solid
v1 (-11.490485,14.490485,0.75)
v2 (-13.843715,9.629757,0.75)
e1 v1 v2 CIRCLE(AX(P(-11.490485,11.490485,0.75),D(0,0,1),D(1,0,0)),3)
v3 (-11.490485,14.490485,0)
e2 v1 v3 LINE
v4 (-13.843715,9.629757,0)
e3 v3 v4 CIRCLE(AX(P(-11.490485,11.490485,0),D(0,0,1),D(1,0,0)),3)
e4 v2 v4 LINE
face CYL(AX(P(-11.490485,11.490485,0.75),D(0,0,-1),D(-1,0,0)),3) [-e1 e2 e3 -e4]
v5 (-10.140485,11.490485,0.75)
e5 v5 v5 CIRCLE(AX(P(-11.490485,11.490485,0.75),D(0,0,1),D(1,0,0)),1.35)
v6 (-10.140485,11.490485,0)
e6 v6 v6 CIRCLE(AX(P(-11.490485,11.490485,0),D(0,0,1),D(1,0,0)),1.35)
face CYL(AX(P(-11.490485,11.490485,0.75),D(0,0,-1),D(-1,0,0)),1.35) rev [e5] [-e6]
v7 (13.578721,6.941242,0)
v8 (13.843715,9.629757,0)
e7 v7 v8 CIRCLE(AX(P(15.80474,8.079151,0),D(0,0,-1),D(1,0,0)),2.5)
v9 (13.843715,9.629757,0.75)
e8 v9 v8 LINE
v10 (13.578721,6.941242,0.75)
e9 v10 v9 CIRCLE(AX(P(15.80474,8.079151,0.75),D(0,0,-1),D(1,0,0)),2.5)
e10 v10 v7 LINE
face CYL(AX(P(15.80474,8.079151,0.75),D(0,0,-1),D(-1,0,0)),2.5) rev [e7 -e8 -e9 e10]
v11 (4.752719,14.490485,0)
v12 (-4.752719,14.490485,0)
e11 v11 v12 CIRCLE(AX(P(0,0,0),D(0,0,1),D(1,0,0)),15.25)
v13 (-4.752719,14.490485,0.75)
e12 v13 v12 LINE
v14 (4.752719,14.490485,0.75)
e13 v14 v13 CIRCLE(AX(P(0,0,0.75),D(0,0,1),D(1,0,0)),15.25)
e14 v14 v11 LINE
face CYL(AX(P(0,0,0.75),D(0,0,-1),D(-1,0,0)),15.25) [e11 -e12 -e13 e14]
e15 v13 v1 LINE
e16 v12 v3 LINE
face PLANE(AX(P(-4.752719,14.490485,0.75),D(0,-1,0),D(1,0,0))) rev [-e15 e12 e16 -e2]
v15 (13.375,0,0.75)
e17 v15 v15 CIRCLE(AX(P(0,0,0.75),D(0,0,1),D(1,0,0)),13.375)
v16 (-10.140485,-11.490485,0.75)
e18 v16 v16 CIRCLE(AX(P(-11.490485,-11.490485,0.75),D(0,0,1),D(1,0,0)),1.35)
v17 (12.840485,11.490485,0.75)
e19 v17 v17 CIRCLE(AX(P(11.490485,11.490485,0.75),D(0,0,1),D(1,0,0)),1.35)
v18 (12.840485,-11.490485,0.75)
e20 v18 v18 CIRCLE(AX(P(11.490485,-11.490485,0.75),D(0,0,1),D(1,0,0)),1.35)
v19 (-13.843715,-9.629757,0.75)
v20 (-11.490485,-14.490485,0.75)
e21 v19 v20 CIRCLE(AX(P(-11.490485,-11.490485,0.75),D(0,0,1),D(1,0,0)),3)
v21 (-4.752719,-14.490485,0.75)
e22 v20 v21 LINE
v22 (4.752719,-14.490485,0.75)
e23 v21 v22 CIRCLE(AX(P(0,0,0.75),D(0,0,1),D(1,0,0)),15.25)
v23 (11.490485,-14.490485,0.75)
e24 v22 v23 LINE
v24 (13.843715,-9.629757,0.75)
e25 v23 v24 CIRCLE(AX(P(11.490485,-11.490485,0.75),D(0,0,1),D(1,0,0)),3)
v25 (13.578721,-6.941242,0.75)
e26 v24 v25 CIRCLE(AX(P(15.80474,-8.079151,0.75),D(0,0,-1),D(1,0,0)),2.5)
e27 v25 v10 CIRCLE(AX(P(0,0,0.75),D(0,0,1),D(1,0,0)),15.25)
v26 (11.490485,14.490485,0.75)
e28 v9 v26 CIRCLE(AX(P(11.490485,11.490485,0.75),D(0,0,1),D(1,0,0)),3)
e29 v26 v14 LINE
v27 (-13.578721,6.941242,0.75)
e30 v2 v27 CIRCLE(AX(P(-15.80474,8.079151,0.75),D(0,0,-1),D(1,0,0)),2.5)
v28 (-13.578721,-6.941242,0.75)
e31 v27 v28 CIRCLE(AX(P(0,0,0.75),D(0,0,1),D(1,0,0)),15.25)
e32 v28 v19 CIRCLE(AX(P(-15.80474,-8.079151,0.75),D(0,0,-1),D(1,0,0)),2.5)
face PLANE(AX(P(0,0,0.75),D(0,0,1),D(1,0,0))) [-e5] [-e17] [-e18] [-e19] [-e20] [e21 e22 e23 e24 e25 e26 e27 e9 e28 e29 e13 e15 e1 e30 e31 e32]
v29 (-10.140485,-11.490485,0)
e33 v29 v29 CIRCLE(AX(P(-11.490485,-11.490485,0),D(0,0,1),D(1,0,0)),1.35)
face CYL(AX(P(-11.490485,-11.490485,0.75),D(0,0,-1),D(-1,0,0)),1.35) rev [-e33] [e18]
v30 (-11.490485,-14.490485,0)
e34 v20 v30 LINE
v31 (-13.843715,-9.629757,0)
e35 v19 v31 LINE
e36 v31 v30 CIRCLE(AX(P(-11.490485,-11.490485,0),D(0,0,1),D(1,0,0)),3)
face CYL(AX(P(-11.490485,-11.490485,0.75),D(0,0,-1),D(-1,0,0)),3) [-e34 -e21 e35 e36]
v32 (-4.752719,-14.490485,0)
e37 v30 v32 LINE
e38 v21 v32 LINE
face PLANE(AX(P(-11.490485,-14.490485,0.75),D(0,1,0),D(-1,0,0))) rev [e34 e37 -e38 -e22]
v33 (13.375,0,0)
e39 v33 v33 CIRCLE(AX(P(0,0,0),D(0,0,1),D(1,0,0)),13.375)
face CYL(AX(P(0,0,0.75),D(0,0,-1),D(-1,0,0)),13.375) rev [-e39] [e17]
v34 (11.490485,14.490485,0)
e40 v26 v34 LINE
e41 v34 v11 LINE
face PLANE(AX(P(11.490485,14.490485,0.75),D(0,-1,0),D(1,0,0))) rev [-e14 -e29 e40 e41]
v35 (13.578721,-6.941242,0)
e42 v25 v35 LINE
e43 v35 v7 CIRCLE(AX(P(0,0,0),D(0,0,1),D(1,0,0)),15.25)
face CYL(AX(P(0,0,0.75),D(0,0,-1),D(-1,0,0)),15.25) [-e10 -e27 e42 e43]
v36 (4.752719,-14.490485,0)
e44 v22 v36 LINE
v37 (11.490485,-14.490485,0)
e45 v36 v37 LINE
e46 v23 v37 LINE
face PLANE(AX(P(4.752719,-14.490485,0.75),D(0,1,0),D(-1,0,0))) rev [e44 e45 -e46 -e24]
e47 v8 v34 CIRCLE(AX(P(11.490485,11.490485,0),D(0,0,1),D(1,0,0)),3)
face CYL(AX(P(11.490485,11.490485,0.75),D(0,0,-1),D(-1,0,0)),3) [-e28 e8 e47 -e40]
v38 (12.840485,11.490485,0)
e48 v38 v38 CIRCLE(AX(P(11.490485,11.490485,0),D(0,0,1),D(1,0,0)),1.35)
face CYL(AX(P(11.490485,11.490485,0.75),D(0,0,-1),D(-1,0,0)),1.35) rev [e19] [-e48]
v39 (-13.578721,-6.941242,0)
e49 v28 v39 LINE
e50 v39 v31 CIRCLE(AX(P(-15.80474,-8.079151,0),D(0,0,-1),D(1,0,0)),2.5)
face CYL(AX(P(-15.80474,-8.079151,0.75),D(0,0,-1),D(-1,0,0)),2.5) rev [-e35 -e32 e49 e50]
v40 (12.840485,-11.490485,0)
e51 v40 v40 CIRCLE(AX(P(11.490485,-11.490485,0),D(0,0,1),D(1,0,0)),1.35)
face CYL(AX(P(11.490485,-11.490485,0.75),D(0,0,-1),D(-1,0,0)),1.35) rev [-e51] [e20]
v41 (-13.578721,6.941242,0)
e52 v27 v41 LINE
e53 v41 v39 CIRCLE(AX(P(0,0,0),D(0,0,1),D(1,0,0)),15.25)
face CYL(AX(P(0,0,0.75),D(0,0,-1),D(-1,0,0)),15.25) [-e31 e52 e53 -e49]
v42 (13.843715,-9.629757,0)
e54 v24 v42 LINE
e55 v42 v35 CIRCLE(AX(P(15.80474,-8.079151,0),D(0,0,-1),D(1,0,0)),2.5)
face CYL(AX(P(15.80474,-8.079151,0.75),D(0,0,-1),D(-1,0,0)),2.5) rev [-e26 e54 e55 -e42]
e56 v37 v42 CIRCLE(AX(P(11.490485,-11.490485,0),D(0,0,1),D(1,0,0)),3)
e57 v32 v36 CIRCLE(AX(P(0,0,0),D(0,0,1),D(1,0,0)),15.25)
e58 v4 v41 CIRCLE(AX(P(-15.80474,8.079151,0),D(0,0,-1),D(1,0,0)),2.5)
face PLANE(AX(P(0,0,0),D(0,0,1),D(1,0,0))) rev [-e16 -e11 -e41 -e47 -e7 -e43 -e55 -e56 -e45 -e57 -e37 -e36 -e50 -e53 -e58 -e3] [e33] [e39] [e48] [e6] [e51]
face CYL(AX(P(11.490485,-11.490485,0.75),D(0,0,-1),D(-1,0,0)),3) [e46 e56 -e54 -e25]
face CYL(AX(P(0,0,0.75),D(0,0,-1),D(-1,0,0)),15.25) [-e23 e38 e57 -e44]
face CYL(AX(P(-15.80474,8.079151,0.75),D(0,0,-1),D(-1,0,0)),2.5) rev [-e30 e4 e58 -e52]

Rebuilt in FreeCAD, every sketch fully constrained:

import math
import FreeCAD as App
import Part
import Sketcher
from FreeCAD import Vector
Q = App.Units.Quantity

doc = App.newDocument("Part")
params = doc.addObject("Spreadsheet::Sheet", "Params")
for row, (alias, value) in enumerate([
    ("sketch1_radius", "3 mm"),
    ("sketch1_diameter", "2.7 mm"),
    ("sketch1_radius2", "2.5 mm"),
    ("sketch1_diameter2", "26.75 mm"),
    ("sketch1_radius3", "15.25 mm"),
    ("pad1_length", "0.75 mm"),
], start=1):
    params.set(f"A{row}", alias)
    params.set(f"B{row}", "=" + value)
    params.setAlias(f"B{row}", alias)

body = doc.addObject("PartDesign::Body", "Body")

sketch1 = doc.addObject("Sketcher::SketchObject", "Sketch")
body.addObject(sketch1)
sketch1.AttachmentSupport = (doc.XY_Plane, [""])
sketch1.MapMode = "FlatFace"
sketch1.addGeometry([
    Part.LineSegment(Vector(-4.8, 14.5, 0), Vector(-11.5, 14.5, 0)),
    Part.ArcOfCircle(Part.Circle(Vector(-11.5, 11.5, 0), Vector(0, 0, 1), 3), math.radians(90), math.radians(218)),
    Part.ArcOfCircle(Part.Circle(Vector(-15.8, 8.1, 0), Vector(0, 0, 1), 2.5), math.radians(-27), math.radians(38)),
    Part.ArcOfCircle(Part.Circle(Vector(0, 0, 0), Vector(0, 0, 1), 15.3), math.radians(152.92), math.radians(165.53)),
    Part.ArcOfCircle(Part.Circle(Vector(0, 0, 0), Vector(0, 0, 1), 15.3), math.radians(165.53), math.radians(172.24)),
    Part.ArcOfCircle(Part.Circle(Vector(0, 0, 0), Vector(0, 0, 1), 15.2), math.radians(172.24), math.radians(180)),
    Part.ArcOfCircle(Part.Circle(Vector(0, 0, 0), Vector(0, 0, 1), 15.2), math.radians(180), math.radians(207)),
    Part.ArcOfCircle(Part.Circle(Vector(-15.8, -8.1, 0), Vector(0, 0, 1), 2.5), math.radians(-38), math.radians(27)),
    Part.ArcOfCircle(Part.Circle(Vector(-11.5, -11.5, 0), Vector(0, 0, 1), 3), math.radians(142), math.radians(270)),
    Part.LineSegment(Vector(-11.5, -14.5, 0), Vector(-4.8, -14.5, 0)),
    Part.ArcOfCircle(Part.Circle(Vector(0, 0, 0), Vector(0, 0, 1), 15.2), math.radians(-108), math.radians(-72)),
    Part.LineSegment(Vector(4.8, -14.5, 0), Vector(11.5, -14.5, 0)),
    Part.ArcOfCircle(Part.Circle(Vector(11.5, -11.5, 0), Vector(0, 0, 1), 3), math.radians(-90), math.radians(38)),
    Part.ArcOfCircle(Part.Circle(Vector(15.8, -8.1, 0), Vector(0, 0, 1), 2.5), math.radians(153), math.radians(218)),
    Part.ArcOfCircle(Part.Circle(Vector(0, 0, 0), Vector(0, 0, 1), 15.2), math.radians(-27), math.radians(27)),
    Part.ArcOfCircle(Part.Circle(Vector(15.8, 8.1, 0), Vector(0, 0, 1), 2.5), math.radians(142), math.radians(207)),
    Part.ArcOfCircle(Part.Circle(Vector(11.5, 11.5, 0), Vector(0, 0, 1), 3), math.radians(-38), math.radians(90)),
    Part.LineSegment(Vector(11.5, 14.5, 0), Vector(4.8, 14.5, 0)),
    Part.ArcOfCircle(Part.Circle(Vector(0, 0, 0), Vector(0, 0, 1), 15.3), math.radians(71.84), math.radians(90)),
    Part.ArcOfCircle(Part.Circle(Vector(0, 0, 0), Vector(0, 0, 1), 15.3), math.radians(90), math.radians(108.16)),
    Part.Circle(Vector(-11.5, -11.5, 0), Vector(0, 0, 1), 1.4),
    Part.Circle(Vector(0, 0, 0), Vector(0, 0, 1), 13.4),
    Part.Circle(Vector(11.5, -11.5, 0), Vector(0, 0, 1), 1.4),
    Part.Circle(Vector(-11.5, 11.5, 0), Vector(0, 0, 1), 1.4),
    Part.Circle(Vector(11.5, 11.5, 0), Vector(0, 0, 1), 1.4),
], False)
sketch1.addConstraint([
    Sketcher.Constraint("Tangent", 0, 2, 1, 1),
    Sketcher.Constraint("Tangent", 1, 2, 2, 2),
    Sketcher.Constraint("Tangent", 2, 1, 3, 1),
    Sketcher.Constraint("Tangent", 3, 2, 4, 1),
    Sketcher.Constraint("Tangent", 4, 2, 5, 1),
    Sketcher.Constraint("Tangent", 5, 2, 6, 1),
    Sketcher.Constraint("Tangent", 6, 2, 7, 2),
    Sketcher.Constraint("Tangent", 7, 1, 8, 1),
    Sketcher.Constraint("Tangent", 8, 2, 9, 1),
    Sketcher.Constraint("Coincident", 9, 2, 10, 1),
    Sketcher.Constraint("Coincident", 10, 2, 11, 1),
    Sketcher.Constraint("Tangent", 11, 2, 12, 1),
    Sketcher.Constraint("Tangent", 12, 2, 13, 2),
    Sketcher.Constraint("Tangent", 13, 1, 14, 1),
    Sketcher.Constraint("Tangent", 14, 2, 15, 2),
    Sketcher.Constraint("Tangent", 15, 1, 16, 1),
    Sketcher.Constraint("Tangent", 16, 2, 17, 1),
    Sketcher.Constraint("Coincident", 17, 2, 18, 1),
    Sketcher.Constraint("Tangent", 18, 2, 19, 1),
    Sketcher.Constraint("Coincident", 19, 2, 0, 1),
    Sketcher.Constraint("Horizontal", 0),
    Sketcher.Constraint("Horizontal", 9),
    Sketcher.Constraint("Horizontal", 11),
    Sketcher.Constraint("Horizontal", 17),
    Sketcher.Constraint("Coincident", 3, 3, -1, 1),
    Sketcher.Constraint("Coincident", 5, 3, -1, 1),
    Sketcher.Constraint("Coincident", 10, 3, -1, 1),
    Sketcher.Constraint("Coincident", 14, 3, -1, 1),
    Sketcher.Constraint("Coincident", 18, 3, -1, 1),
    Sketcher.Constraint("Coincident", 21, 3, -1, 1),
    Sketcher.Constraint("Coincident", 20, 3, 8, 3),
    Sketcher.Constraint("Coincident", 22, 3, 12, 3),
    Sketcher.Constraint("Coincident", 23, 3, 1, 3),
    Sketcher.Constraint("Coincident", 24, 3, 16, 3),
    Sketcher.Constraint("Equal", 5, 6),
    Sketcher.Constraint("Equal", 2, 7),
    Sketcher.Constraint("Equal", 1, 8),
    Sketcher.Constraint("Equal", 6, 10),
    Sketcher.Constraint("Equal", 8, 12),
    Sketcher.Constraint("Equal", 7, 13),
    Sketcher.Constraint("Equal", 10, 14),
    Sketcher.Constraint("Equal", 13, 15),
    Sketcher.Constraint("Equal", 12, 16),
    Sketcher.Constraint("Equal", 14, 18),
    Sketcher.Constraint("Equal", 18, 19),
    Sketcher.Constraint("Equal", 20, 22),
    Sketcher.Constraint("Equal", 22, 23),
    Sketcher.Constraint("Equal", 23, 24),
    Sketcher.Constraint("Symmetric", 1, 3, 12, 3, -1, 1),
    Sketcher.Constraint("Symmetric", 8, 3, 16, 3, -1, 1),
    Sketcher.Constraint("Symmetric", 8, 3, 12, 3, -2),
    Sketcher.Constraint("PointOnObject", 5, 2, -1),
    Sketcher.Constraint("PointOnObject", 18, 2, -2),
    Sketcher.Constraint("Radius", 1, Q("3 mm")),
    Sketcher.Constraint("Diameter", 20, Q("2.7 mm")),
    Sketcher.Constraint("Radius", 2, Q("2.5 mm")),
    Sketcher.Constraint("Diameter", 21, Q("26.75 mm")),
    Sketcher.Constraint("Radius", 3, Q("15.25 mm")),
    Sketcher.Constraint("DistanceX", 6, 2, 9, 2, Q("8.826002 mm")),
    Sketcher.Constraint("DistanceY", 13, 1, 15, 1, Q("16.571 mm")),
    Sketcher.Constraint("DistanceX", 3, 2, 1, 3, Q("3.275501 mm")),
    Sketcher.Constraint("DistanceX", 4, 2, 3, 2, Q("0.344368 mm")),
])
sketch1.setExpression("Constraints[53]", "Params.sketch1_radius")
sketch1.setExpression("Constraints[54]", "Params.sketch1_diameter")
sketch1.setExpression("Constraints[55]", "Params.sketch1_radius2")
sketch1.setExpression("Constraints[56]", "Params.sketch1_diameter2")
sketch1.setExpression("Constraints[57]", "Params.sketch1_radius3")
pad1 = doc.addObject("PartDesign::Pad", "Pad")
body.addObject(pad1)
pad1.Profile = sketch1
pad1.setExpression("Length", "Params.pad1_length")

doc.recompute()
